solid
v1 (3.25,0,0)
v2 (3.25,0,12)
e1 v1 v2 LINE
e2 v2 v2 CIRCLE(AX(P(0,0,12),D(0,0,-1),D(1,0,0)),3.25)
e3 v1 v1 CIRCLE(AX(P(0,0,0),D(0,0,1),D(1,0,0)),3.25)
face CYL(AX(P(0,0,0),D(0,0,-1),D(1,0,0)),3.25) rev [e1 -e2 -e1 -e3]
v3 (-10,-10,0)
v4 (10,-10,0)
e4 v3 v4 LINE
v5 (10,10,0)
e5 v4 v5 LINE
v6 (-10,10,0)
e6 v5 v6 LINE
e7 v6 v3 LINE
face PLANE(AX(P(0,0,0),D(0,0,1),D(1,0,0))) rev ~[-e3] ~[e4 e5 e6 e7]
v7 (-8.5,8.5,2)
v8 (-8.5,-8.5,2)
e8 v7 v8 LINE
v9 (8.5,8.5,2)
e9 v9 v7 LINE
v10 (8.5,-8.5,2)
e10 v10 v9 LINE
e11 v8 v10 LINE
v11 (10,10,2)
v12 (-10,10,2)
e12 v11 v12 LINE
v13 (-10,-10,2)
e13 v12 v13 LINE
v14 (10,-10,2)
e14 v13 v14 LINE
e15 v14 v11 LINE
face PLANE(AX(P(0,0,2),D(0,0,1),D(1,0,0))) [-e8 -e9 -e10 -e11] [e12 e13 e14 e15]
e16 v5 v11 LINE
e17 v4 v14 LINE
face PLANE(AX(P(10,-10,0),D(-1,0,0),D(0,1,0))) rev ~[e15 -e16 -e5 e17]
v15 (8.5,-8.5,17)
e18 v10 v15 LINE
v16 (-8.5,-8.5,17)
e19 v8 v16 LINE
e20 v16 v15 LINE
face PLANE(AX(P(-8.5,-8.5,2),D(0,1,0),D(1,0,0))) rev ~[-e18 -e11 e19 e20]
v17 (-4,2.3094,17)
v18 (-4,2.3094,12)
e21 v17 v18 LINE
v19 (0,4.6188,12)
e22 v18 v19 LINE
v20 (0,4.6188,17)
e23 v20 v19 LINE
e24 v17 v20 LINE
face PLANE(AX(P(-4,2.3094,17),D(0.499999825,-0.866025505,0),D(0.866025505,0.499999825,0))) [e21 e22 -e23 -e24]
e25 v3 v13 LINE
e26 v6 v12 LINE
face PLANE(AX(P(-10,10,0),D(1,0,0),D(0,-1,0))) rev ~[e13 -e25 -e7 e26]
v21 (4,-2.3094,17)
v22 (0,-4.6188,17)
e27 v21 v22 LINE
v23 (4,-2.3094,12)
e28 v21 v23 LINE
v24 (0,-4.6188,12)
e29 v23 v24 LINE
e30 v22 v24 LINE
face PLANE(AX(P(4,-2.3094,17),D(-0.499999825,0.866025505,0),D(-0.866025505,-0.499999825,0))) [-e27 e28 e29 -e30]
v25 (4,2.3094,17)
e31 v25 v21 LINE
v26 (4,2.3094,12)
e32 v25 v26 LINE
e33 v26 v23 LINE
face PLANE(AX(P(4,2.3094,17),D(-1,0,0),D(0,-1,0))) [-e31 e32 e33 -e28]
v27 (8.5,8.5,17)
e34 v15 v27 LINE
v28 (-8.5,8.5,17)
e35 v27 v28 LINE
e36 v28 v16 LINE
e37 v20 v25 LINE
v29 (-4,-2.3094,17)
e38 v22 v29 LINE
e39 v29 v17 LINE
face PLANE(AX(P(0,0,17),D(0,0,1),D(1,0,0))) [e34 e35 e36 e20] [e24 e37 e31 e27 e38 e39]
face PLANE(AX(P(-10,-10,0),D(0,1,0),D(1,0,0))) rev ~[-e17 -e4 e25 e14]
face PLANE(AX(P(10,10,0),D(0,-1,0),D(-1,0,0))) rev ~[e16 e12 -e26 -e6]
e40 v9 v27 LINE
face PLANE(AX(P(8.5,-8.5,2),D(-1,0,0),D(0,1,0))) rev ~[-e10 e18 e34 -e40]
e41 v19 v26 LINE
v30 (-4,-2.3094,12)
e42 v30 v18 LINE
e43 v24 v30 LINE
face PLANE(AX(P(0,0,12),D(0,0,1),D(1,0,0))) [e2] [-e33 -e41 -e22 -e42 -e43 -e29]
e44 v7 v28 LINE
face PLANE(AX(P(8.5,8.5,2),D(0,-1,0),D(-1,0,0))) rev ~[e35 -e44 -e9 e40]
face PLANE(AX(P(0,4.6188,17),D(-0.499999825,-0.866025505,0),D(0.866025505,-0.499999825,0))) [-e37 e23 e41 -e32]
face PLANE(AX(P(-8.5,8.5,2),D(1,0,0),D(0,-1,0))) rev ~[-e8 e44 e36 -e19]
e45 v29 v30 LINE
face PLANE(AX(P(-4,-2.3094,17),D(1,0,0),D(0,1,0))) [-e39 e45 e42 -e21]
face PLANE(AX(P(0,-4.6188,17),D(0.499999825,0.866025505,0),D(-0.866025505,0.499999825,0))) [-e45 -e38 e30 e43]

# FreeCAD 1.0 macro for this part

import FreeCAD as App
import Part
import Sketcher
from FreeCAD import Vector
Q = App.Units.Quantity


def add_polygon(sketch, points):
    """Adds a closed chain of lines whose ends are joined by coincident constraints."""
    first, n = sketch.GeometryCount, len(points)
    for a, b in zip(points, points[1:] + points[:1]):
        sketch.addGeometry(Part.LineSegment(App.Vector(*a, 0), App.Vector(*b, 0)), False)
    for i in range(n):
        sketch.addConstraint(Sketcher.Constraint("Coincident", first + i, 2, first + (i + 1) % n, 1))

doc = App.newDocument("Part")
body = doc.addObject("PartDesign::Body", "Body")

# Sketch on XY plane
sketch1 = body.newObject("Sketcher::SketchObject", "Sketch")
sketch1.AttachmentSupport = (doc.getObject("XY_Plane"), [""])
sketch1.MapMode = "FlatFace"
add_polygon(sketch1, [(-10, 10), (-10, -10), (10, -10), (10, 10)])  # lines 0-3
sketch1.addGeometry(Part.Circle(Vector(0, 0, 0), Vector(0, 0, 1), 3.2), False)  # 4
sketch1.addConstraint([
    Sketcher.Constraint("Vertical", 0),
    Sketcher.Constraint("Horizontal", 1),
    Sketcher.Constraint("Vertical", 2),
    Sketcher.Constraint("Horizontal", 3),
    Sketcher.Constraint("Coincident", 4, 3, -1, 1),
    Sketcher.Constraint("Symmetric", 0, 2, 2, 2, -1, 1),
    Sketcher.Constraint("Equal", 3, 0),
    Sketcher.Constraint("Diameter", 4, Q("6.5 mm")),
    Sketcher.Constraint("DistanceX", 1, 1, 1, 2, Q("20 mm")),
])
pad1 = body.newObject("PartDesign::Pad", "Pad")
pad1.Profile = sketch1
pad1.Length = 2

# Sketch on XY plane
sketch2 = body.newObject("Sketcher::SketchObject", "Sketch001")
sketch2.AttachmentSupport = (doc.getObject("XY_Plane"), [""])
sketch2.MapMode = "FlatFace"
sketch2.AttachmentOffset = App.Placement(Vector(0, 0, 2), App.Rotation())
add_polygon(sketch2, [(-8.5, 8.5), (-8.5, -8.5), (8.5, -8.5), (8.5, 8.5)])  # lines 0-3
sketch2.addGeometry(Part.Circle(Vector(0, 0, 0), Vector(0, 0, 1), 3.2), False)  # 4
sketch2.addConstraint([
    Sketcher.Constraint("Vertical", 0),
    Sketcher.Constraint("Horizontal", 1),
    Sketcher.Constraint("Vertical", 2),
    Sketcher.Constraint("Horizontal", 3),
    Sketcher.Constraint("Coincident", 4, 3, -1, 1),
    Sketcher.Constraint("Symmetric", 0, 2, 2, 2, -1, 1),
    Sketcher.Constraint("Equal", 3, 0),
    Sketcher.Constraint("DistanceX", 1, 1, 1, 2, Q("17 mm")),
    Sketcher.Constraint("Diameter", 4, Q("6.5 mm")),
])
pad2 = body.newObject("PartDesign::Pad", "Pad001")
pad2.Profile = sketch2
pad2.Length = 15

# Sketch on XY plane
sketch3 = body.newObject("Sketcher::SketchObject", "Sketch002")
sketch3.AttachmentSupport = (doc.getObject("XY_Plane"), [""])
sketch3.MapMode = "FlatFace"
sketch3.AttachmentOffset = App.Placement(Vector(0, 0, 17), App.Rotation())
add_polygon(sketch3, [(4, 2.3), (0, 4.6), (-4, 2.3), (-4, -2.3), (0, -4.6), (4, -2.3)])  # lines 0-5
sketch3.addConstraint([
    Sketcher.Constraint("Vertical", 2),
    Sketcher.Constraint("Vertical", 5),
    Sketcher.Constraint("Symmetric", 0, 2, 3, 2, -1, 1),
    Sketcher.Constraint("Symmetric", 1, 2, 4, 2, -1, 1),
    Sketcher.Constraint("PointOnObject", 0, 2, -2),
    Sketcher.Constraint("Parallel", 0, 3),
    Sketcher.Constraint("Horizontal", 2, 2, 4, 2),
    Sketcher.Constraint("DistanceX", 2, 2, 4, 2, Q("8 mm")),
    Sketcher.Constraint("Angle", 0, Q("150 deg")),
    Sketcher.Constraint("DistanceY", 2, 2, 2, 1, Q("4.6188 mm")),
])
pocket1 = body.newObject("PartDesign::Pocket", "Pocket")
pocket1.Profile = sketch3
pocket1.Length = 5

doc.recompute()
